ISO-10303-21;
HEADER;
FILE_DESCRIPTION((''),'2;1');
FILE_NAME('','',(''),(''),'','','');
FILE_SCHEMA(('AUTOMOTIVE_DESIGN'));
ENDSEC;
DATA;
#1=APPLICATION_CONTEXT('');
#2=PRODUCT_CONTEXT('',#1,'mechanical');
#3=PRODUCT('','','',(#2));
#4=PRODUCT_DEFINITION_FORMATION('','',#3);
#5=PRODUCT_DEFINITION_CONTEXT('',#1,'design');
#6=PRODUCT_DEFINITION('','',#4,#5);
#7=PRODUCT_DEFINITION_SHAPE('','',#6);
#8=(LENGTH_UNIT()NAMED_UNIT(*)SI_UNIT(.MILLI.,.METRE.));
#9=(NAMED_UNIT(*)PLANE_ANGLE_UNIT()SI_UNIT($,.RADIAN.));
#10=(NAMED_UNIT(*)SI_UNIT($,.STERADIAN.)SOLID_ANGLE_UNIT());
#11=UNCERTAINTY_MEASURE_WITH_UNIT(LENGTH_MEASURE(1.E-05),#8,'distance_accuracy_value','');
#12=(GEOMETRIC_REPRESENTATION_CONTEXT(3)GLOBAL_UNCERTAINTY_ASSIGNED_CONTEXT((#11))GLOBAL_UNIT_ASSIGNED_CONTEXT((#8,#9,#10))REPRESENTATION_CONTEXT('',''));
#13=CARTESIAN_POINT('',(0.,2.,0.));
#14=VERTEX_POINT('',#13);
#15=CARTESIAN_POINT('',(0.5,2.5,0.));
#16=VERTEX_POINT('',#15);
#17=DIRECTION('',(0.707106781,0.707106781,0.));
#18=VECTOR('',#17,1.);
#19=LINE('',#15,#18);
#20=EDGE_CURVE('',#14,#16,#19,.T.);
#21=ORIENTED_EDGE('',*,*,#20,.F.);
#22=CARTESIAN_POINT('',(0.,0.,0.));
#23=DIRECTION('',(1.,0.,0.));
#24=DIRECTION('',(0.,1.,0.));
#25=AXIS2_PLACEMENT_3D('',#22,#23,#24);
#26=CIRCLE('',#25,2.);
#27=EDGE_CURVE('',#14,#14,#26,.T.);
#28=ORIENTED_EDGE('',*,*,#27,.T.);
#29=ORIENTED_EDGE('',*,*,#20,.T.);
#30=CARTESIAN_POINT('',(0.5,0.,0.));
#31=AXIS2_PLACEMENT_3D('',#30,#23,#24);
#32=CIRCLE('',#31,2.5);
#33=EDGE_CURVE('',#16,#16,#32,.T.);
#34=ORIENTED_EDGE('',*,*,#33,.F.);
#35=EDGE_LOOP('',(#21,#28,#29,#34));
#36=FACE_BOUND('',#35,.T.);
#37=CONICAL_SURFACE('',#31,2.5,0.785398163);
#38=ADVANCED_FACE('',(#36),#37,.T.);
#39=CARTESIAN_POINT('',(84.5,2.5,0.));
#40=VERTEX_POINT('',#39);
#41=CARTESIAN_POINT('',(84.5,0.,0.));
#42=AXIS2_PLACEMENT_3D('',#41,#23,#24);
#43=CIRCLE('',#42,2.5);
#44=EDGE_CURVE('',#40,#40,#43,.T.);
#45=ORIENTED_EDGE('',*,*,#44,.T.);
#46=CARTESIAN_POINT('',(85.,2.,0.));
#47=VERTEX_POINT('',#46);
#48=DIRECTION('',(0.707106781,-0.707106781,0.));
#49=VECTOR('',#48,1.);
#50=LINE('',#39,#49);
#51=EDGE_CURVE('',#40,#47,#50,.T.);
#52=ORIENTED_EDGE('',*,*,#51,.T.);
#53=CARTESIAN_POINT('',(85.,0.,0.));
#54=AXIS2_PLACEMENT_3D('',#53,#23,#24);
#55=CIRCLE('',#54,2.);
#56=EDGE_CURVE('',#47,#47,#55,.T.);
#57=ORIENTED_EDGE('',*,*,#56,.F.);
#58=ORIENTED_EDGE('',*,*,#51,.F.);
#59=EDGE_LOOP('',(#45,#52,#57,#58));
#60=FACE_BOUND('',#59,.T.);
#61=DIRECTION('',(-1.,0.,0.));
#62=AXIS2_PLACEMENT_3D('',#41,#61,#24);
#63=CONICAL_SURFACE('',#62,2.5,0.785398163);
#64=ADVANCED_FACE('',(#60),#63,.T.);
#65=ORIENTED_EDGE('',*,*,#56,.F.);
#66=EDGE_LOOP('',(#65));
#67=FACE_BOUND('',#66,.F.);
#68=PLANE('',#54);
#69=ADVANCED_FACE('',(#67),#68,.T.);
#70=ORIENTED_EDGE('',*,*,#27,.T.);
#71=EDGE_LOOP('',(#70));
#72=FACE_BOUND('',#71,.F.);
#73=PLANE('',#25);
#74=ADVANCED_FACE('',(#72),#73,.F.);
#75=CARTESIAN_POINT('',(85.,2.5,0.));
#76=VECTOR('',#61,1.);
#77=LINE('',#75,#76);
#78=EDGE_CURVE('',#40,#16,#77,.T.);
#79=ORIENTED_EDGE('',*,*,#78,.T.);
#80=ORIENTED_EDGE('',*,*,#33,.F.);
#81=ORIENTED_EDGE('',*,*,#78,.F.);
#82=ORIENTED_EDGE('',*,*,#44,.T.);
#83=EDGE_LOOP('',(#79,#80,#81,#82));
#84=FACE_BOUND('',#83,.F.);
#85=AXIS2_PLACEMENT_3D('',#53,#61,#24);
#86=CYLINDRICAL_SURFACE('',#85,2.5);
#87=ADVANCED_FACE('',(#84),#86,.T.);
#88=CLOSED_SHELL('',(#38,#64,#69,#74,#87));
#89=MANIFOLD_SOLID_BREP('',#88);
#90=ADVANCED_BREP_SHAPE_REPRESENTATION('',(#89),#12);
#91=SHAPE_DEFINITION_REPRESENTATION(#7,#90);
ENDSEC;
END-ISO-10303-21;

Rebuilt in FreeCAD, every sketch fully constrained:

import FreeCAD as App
import Part
import Sketcher
from FreeCAD import Vector


def edges_at(feature, points):
    """Names of the edges that pass closest to the given points."""
    edges = feature.Shape.Edges
    near = lambda p: min(range(len(edges)), key=lambda i: edges[i].distToShape(Part.Vertex(*p))[0])
    return sorted({f"Edge{near(p) + 1}" for p in points})

doc = App.newDocument("Part")
body = doc.addObject("PartDesign::Body", "Body")

# Sketch on XY plane
sketch1 = body.newObject("Sketcher::SketchObject", "Sketch")
sketch1.AttachmentSupport = (doc.getObject("XY_Plane"), [""])
sketch1.MapMode = "FlatFace"
sketch1.addGeometry(Part.LineSegment(Vector(0, 2.5, 0), Vector(0, 0, 0)), False)
sketch1.addGeometry(Part.LineSegment(Vector(0, 0, 0), Vector(85, 0, 0)), False)
sketch1.addGeometry(Part.LineSegment(Vector(85, 0, 0), Vector(85, 2.5, 0)), False)
sketch1.addGeometry(Part.LineSegment(Vector(85, 2.5, 0), Vector(0, 2.5, 0)), False)
sketch1.addConstraint(Sketcher.Constraint("Coincident", 0, 2, 1, 1))
sketch1.addConstraint(Sketcher.Constraint("Coincident", 1, 2, 2, 1))
sketch1.addConstraint(Sketcher.Constraint("Coincident", 2, 2, 3, 1))
sketch1.addConstraint(Sketcher.Constraint("Coincident", 3, 2, 0, 1))
sketch1.addConstraint(Sketcher.Constraint("Vertical", 0))
sketch1.addConstraint(Sketcher.Constraint("Horizontal", 1))
sketch1.addConstraint(Sketcher.Constraint("Vertical", 2))
sketch1.addConstraint(Sketcher.Constraint("Horizontal", 3))
sketch1.addConstraint(Sketcher.Constraint("Coincident", 0, 2, -1, 1))
sketch1.addConstraint(Sketcher.Constraint("DistanceX", 1, 1, 1, 2, 85.0))
sketch1.addConstraint(Sketcher.Constraint("DistanceY", 0, 2, 0, 1, 2.5))
revolution = body.newObject("PartDesign::Revolution", "Revolution")
revolution.Profile = sketch1
revolution.ReferenceAxis = (sketch1, ["H_Axis"])
revolution.Angle = 360
doc.recompute()

chamfer = body.newObject("PartDesign::Chamfer", "Chamfer")
chamfer.Base = (revolution, edges_at(revolution, [(0, -2.5, 0), (85, -2.5, 0)]))
chamfer.Size = 0.5

doc.recompute()
